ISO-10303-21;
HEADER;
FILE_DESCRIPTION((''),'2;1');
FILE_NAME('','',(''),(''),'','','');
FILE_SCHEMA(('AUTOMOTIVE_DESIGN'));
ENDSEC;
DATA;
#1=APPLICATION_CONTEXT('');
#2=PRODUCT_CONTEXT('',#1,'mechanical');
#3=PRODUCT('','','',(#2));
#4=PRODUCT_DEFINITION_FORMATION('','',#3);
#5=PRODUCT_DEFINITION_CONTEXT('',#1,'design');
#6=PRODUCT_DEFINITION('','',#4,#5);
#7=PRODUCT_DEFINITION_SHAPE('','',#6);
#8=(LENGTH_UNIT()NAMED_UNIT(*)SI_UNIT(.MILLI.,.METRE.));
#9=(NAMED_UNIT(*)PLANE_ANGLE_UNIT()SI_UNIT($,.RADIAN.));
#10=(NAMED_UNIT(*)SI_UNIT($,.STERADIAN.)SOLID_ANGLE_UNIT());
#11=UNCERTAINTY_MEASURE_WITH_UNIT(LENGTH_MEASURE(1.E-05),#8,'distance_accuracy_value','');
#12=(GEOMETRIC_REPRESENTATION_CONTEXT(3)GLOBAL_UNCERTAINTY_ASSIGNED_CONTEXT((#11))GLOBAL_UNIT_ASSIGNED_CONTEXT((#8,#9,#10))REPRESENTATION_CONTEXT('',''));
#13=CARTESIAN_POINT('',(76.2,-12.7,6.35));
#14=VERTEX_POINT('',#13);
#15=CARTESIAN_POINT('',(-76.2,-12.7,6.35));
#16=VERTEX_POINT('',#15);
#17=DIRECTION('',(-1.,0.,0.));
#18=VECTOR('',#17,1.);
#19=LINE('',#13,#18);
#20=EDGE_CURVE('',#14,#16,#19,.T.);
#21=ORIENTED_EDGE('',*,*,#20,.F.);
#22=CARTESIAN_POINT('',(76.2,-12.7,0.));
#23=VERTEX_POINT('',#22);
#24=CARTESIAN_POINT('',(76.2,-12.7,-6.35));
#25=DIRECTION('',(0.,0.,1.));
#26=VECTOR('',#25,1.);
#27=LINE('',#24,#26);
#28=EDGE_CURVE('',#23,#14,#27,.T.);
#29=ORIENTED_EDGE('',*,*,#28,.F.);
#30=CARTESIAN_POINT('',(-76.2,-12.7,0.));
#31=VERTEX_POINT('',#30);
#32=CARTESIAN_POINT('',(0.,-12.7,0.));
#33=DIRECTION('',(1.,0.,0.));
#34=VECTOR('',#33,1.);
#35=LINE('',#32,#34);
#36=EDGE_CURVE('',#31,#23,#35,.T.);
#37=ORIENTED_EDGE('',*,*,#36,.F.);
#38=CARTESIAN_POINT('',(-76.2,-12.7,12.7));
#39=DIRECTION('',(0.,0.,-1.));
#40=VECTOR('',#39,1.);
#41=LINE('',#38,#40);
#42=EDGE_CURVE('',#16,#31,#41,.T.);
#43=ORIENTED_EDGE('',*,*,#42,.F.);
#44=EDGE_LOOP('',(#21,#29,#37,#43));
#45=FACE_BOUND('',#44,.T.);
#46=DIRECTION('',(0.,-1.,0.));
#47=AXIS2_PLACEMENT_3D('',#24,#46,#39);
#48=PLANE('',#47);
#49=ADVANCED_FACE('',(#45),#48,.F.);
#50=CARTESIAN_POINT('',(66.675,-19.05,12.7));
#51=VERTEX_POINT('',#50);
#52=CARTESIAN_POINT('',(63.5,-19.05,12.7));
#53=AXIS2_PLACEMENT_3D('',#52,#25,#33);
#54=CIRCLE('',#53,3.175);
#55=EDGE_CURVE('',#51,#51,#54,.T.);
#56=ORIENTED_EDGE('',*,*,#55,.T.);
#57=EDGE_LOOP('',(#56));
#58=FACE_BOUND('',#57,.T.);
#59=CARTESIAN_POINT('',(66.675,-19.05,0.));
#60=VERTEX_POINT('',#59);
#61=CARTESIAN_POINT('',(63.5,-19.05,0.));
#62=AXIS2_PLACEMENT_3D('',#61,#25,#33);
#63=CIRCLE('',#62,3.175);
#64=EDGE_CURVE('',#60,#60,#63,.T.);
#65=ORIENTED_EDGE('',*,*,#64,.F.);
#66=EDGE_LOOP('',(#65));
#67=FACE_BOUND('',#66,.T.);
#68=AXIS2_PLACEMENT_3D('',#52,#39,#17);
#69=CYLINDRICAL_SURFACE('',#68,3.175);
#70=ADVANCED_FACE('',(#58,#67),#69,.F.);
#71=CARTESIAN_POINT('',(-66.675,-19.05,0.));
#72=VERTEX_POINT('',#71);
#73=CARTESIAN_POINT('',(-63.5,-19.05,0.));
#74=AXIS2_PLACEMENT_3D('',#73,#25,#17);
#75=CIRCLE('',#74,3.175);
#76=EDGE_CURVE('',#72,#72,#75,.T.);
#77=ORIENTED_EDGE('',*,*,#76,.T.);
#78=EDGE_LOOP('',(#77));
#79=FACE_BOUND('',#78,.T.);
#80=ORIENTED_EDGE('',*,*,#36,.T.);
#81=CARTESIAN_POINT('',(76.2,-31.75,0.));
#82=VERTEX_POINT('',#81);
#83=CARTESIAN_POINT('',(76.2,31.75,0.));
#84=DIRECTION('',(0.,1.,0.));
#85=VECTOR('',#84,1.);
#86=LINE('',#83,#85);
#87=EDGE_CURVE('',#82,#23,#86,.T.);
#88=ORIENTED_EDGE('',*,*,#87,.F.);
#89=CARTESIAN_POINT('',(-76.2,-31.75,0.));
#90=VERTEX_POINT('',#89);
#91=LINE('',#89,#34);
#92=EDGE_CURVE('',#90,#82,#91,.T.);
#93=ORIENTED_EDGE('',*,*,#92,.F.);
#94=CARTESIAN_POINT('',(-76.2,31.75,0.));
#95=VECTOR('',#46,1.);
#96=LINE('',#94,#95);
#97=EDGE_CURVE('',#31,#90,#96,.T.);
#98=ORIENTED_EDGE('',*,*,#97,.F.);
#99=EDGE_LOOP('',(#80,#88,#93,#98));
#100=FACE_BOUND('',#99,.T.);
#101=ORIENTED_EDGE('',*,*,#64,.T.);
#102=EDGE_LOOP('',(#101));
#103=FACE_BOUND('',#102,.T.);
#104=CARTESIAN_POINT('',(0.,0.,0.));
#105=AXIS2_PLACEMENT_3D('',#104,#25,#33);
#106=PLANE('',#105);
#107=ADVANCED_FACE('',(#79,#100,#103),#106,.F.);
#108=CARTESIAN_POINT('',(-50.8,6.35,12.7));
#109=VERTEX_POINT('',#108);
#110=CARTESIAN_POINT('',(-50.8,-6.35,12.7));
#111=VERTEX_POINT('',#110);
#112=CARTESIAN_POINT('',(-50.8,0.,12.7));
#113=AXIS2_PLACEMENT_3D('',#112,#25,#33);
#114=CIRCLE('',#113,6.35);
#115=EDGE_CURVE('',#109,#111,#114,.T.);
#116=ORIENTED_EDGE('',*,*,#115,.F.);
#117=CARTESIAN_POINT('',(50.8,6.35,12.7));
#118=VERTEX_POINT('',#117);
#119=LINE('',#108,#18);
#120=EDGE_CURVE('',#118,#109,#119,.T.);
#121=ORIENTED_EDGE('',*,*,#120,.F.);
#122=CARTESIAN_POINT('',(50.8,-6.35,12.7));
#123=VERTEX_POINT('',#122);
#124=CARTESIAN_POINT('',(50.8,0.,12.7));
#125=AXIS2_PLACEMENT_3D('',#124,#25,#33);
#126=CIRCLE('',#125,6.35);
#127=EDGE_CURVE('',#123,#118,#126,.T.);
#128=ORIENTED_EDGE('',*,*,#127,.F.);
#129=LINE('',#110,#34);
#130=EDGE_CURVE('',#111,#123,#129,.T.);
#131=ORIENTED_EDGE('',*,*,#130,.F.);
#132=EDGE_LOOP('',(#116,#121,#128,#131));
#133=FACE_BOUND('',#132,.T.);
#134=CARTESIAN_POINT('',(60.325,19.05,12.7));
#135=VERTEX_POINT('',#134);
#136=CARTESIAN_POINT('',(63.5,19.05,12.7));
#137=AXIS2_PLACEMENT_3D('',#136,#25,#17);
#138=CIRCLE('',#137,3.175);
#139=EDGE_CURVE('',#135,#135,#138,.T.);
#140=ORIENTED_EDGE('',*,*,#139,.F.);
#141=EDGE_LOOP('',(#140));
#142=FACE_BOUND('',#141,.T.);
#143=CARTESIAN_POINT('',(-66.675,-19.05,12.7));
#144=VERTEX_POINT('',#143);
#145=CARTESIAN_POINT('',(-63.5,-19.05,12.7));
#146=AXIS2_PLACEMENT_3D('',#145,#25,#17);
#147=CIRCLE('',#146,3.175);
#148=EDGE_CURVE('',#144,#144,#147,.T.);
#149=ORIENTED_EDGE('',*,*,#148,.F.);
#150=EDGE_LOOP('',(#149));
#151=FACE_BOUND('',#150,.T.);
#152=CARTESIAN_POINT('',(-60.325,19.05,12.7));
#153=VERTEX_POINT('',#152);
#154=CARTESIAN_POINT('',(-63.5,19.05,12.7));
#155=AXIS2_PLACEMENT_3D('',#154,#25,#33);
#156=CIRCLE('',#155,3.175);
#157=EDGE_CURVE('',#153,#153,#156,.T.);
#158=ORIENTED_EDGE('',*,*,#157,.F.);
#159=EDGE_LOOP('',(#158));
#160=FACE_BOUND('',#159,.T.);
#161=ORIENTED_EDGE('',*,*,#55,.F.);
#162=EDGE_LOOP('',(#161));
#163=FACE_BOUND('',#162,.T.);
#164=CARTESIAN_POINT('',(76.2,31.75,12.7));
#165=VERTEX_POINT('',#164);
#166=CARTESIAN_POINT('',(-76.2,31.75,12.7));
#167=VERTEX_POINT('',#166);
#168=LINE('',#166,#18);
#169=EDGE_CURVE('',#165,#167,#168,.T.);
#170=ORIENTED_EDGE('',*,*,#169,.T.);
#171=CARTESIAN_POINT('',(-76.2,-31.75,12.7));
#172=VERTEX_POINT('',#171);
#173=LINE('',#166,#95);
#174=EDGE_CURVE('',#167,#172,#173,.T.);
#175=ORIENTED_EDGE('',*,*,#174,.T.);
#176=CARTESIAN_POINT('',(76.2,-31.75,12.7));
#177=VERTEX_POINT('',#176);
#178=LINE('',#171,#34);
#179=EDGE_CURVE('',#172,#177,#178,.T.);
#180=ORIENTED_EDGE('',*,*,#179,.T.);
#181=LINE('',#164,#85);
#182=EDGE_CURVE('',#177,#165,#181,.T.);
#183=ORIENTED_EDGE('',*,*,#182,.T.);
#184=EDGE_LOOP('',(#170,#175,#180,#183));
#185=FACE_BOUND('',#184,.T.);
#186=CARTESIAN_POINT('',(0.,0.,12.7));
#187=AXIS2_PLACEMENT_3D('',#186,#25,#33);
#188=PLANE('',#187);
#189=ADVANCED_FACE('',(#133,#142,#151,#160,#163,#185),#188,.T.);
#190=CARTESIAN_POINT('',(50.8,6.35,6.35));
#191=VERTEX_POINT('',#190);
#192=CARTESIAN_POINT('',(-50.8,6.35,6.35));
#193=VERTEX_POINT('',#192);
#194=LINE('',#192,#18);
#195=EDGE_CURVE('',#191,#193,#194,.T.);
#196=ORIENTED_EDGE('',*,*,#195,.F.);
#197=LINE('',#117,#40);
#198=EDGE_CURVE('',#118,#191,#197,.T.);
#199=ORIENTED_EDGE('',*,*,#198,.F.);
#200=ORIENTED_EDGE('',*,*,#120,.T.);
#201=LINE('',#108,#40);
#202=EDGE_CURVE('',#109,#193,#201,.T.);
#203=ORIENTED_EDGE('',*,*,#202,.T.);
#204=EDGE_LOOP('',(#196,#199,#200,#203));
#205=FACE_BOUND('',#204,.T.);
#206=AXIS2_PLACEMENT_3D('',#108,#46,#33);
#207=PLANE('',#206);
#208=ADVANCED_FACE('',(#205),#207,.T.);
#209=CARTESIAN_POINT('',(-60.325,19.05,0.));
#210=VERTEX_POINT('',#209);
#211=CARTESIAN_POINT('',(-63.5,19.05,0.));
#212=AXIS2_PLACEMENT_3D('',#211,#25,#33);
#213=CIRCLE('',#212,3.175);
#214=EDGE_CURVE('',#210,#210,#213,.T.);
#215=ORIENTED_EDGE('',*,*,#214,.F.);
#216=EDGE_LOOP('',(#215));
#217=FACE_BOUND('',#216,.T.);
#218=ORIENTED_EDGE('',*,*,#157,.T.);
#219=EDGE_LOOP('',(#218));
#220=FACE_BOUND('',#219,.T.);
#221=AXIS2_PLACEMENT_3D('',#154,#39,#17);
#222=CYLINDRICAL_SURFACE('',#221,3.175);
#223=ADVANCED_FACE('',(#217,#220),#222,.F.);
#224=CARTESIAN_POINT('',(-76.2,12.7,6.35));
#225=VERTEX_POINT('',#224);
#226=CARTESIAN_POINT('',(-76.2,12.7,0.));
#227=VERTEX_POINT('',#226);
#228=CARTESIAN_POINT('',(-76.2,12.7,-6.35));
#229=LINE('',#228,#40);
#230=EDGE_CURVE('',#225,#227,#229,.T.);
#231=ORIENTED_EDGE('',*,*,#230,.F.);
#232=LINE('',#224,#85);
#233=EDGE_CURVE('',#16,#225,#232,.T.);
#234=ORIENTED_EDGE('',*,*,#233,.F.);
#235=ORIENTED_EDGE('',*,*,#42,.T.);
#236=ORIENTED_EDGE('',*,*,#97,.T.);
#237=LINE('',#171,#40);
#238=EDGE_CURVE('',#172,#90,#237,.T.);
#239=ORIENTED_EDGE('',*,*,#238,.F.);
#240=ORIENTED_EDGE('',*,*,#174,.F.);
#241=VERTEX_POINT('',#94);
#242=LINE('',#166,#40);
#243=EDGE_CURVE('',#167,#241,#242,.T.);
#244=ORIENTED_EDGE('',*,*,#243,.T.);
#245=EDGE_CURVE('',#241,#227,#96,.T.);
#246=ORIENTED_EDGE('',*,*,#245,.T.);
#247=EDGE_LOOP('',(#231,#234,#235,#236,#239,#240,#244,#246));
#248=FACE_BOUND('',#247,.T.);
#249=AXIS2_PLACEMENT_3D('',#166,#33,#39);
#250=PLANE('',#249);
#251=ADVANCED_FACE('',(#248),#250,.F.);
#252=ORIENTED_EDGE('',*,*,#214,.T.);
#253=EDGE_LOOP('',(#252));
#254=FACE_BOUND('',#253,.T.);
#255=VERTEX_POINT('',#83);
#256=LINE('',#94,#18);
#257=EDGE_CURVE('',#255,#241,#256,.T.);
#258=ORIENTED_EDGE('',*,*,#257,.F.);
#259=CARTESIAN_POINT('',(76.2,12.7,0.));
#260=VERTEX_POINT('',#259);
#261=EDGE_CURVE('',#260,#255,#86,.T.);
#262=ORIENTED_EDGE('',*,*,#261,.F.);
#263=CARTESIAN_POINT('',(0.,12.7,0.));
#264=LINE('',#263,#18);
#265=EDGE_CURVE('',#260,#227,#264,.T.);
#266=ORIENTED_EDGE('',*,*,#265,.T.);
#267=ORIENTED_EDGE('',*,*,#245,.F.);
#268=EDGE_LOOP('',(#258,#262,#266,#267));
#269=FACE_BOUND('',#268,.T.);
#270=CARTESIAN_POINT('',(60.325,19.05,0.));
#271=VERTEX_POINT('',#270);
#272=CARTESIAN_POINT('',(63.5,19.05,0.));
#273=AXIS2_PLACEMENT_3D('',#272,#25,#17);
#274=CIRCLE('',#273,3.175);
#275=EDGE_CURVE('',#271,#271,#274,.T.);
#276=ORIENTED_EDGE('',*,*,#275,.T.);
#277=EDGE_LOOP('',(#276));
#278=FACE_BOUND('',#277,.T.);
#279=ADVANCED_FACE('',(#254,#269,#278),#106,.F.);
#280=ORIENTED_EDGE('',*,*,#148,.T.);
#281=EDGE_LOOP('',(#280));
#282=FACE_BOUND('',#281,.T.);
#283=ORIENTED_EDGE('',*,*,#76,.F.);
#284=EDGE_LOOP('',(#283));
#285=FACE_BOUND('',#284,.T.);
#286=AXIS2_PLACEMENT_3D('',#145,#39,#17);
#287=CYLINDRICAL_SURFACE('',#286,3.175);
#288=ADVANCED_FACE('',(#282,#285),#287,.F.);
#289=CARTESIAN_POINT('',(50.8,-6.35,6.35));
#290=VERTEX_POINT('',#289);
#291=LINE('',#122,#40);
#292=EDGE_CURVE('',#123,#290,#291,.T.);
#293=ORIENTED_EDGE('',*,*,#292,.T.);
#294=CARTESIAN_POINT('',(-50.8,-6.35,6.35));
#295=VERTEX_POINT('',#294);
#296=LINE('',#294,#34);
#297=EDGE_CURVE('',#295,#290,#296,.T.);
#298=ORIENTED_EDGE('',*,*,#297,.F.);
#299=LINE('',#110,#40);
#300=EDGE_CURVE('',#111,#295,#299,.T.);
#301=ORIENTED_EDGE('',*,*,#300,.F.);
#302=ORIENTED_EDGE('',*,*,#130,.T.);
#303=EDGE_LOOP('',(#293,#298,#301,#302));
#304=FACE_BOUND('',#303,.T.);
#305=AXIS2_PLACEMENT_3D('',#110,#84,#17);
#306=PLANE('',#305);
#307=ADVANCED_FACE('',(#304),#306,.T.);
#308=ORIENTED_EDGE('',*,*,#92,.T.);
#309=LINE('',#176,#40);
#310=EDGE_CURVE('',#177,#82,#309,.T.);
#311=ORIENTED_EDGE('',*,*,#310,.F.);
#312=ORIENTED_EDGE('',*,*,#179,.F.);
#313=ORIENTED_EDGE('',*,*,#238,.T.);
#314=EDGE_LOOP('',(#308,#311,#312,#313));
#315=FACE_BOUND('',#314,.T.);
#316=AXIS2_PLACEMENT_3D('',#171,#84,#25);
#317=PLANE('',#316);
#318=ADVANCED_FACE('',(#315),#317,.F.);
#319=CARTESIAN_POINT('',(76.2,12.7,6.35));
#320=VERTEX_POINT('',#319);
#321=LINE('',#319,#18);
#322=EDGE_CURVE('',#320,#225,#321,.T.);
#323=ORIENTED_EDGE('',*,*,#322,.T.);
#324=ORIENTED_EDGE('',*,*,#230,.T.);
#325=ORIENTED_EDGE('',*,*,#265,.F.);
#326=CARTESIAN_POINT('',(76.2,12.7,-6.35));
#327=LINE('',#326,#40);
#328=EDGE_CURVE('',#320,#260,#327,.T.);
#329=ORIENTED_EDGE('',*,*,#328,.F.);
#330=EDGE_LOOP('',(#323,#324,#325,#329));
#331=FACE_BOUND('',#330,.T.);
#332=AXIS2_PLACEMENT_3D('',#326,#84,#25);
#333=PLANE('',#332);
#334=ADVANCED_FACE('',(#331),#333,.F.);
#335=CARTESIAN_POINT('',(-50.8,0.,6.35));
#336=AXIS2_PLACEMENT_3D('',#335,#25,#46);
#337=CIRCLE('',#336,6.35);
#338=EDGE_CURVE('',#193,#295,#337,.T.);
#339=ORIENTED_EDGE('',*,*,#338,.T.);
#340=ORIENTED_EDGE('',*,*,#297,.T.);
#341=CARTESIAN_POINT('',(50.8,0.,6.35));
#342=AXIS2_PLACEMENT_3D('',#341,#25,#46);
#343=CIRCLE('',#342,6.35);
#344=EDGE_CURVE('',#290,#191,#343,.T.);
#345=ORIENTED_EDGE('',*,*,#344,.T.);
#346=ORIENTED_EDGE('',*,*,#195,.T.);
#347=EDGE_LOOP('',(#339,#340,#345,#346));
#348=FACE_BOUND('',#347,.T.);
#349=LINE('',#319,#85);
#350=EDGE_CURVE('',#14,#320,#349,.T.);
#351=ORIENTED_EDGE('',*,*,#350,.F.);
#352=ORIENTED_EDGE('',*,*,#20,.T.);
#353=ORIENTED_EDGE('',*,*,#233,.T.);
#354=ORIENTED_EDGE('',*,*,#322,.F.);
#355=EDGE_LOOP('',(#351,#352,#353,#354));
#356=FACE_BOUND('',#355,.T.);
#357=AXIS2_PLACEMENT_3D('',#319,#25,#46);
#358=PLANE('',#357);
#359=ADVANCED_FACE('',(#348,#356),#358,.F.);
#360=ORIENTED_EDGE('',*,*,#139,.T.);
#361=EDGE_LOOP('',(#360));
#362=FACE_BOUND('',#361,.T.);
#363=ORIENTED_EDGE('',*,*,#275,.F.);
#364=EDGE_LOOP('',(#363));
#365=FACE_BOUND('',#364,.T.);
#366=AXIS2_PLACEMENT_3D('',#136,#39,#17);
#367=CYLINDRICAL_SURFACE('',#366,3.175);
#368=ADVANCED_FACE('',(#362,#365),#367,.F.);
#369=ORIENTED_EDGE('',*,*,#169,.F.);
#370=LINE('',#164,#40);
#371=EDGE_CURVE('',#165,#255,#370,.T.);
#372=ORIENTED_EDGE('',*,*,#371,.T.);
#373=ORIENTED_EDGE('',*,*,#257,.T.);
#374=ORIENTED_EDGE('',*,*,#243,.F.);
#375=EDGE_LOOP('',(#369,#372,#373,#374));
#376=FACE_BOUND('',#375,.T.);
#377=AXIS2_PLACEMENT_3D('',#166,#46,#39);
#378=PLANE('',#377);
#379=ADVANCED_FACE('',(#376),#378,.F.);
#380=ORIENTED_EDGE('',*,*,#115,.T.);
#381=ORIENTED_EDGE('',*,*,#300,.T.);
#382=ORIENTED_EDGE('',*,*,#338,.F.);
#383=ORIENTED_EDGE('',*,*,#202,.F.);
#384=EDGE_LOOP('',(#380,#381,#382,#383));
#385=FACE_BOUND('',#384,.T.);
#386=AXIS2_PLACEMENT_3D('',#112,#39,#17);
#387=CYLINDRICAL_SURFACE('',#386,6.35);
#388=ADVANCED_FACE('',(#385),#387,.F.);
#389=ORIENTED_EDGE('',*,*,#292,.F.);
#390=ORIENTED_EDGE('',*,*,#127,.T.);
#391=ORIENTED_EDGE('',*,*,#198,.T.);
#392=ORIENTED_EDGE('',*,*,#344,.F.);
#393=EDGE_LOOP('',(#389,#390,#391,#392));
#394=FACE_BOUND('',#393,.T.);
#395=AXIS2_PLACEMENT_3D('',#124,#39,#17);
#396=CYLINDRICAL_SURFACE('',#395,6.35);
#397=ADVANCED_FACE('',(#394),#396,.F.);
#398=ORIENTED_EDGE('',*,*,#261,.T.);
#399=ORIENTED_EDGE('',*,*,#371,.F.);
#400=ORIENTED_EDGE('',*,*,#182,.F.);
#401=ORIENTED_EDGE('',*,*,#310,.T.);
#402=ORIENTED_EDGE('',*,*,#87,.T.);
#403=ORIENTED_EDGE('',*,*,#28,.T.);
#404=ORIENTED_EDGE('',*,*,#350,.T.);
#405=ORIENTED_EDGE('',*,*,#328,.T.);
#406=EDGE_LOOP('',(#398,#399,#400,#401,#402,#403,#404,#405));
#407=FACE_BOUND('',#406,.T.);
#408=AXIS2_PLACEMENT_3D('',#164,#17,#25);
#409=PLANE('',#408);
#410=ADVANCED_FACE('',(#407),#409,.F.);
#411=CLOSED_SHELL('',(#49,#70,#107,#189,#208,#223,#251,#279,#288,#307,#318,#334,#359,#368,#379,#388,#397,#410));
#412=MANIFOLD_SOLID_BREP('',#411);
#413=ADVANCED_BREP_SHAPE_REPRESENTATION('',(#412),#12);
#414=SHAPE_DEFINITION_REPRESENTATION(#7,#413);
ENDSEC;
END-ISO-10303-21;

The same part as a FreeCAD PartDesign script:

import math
import FreeCAD as App
import Part
import Sketcher
Q = App.Units.Quantity

doc = App.newDocument("Part")
body = doc.addObject("PartDesign::Body", "Body")

sketch1 = body.newObject("Sketcher::SketchObject", "Sketch")
sketch1.AttachmentSupport = (doc.getObject("XY_Plane"), [""])
sketch1.MapMode = "FlatFace"
sketch1.addGeometry([
    Part.LineSegment(App.Vector(-76.2, 31.8, 0), App.Vector(-76.2, -31.8, 0)),
    Part.LineSegment(App.Vector(-76.2, -31.8, 0), App.Vector(76.2, -31.8, 0)),
    Part.LineSegment(App.Vector(76.2, -31.8, 0), App.Vector(76.2, 31.8, 0)),
    Part.LineSegment(App.Vector(76.2, 31.8, 0), App.Vector(-76.2, 31.8, 0)),
    Part.Circle(App.Vector(-63.5, -19.1, 0), App.Vector(0, 0, 1), 3.2),
    Part.Circle(App.Vector(63.5, -19.1, 0), App.Vector(0, 0, 1), 3.2),
    Part.Circle(App.Vector(-63.5, 19.1, 0), App.Vector(0, 0, 1), 3.2),
    Part.ArcOfCircle(Part.Circle(App.Vector(-50.8, 0, 0), App.Vector(0, 0, 1), 6.3), math.radians(90), math.radians(270)),
    Part.LineSegment(App.Vector(-50.8, 6.3, 0), App.Vector(50.8, 6.3, 0)),
    Part.ArcOfCircle(Part.Circle(App.Vector(50.8, 0, 0), App.Vector(0, 0, 1), 6.3), math.radians(-90), math.radians(90)),
    Part.LineSegment(App.Vector(50.8, -6.3, 0), App.Vector(-50.8, -6.3, 0)),
    Part.Circle(App.Vector(63.5, 19.1, 0), App.Vector(0, 0, 1), 3.2),
], False)
sketch1.addConstraint([
    Sketcher.Constraint("Coincident", 0, 2, 1, 1),
    Sketcher.Constraint("Coincident", 1, 2, 2, 1),
    Sketcher.Constraint("Coincident", 2, 2, 3, 1),
    Sketcher.Constraint("Coincident", 3, 2, 0, 1),
    Sketcher.Constraint("Tangent", 7, 1, 8, 1),
    Sketcher.Constraint("Tangent", 8, 2, 9, 2),
    Sketcher.Constraint("Tangent", 9, 1, 10, 1),
    Sketcher.Constraint("Tangent", 10, 2, 7, 2),
    Sketcher.Constraint("Vertical", 0),
    Sketcher.Constraint("Horizontal", 1),
    Sketcher.Constraint("Vertical", 2),
    Sketcher.Constraint("Horizontal", 3),
    Sketcher.Constraint("Horizontal", 8),
    Sketcher.Constraint("Horizontal", 10),
    Sketcher.Constraint("Equal", 4, 5),
    Sketcher.Constraint("Equal", 5, 6),
    Sketcher.Constraint("Equal", 6, 11),
    Sketcher.Constraint("Symmetric", 5, 3, 6, 3, -1, 1),
    Sketcher.Constraint("Symmetric", 7, 3, 9, 3, -1, 1),
    Sketcher.Constraint("Symmetric", 4, 3, 11, 3, -1, 1),
    Sketcher.Constraint("Symmetric", 0, 2, 2, 2, -1, 1),
    Sketcher.Constraint("Symmetric", 4, 3, 5, 3, -2),
    Sketcher.Constraint("Diameter", 4, Q("0.25 in")),
    Sketcher.Constraint("DistanceX", 1, 1, 1, 2, Q("6 in")),
    Sketcher.Constraint("DistanceX", 8, 1, 8, 2, Q("4 in")),
    Sketcher.Constraint("Radius", 7, Q("0.25 in")),
    Sketcher.Constraint("DistanceY", 0, 2, 0, 1, Q("2.5 in")),
    Sketcher.Constraint("DistanceX", 4, 3, 5, 3, Q("5 in")),
    Sketcher.Constraint("DistanceY", 0, 2, 6, 3, Q("2 in")),
])
pad1 = body.newObject("PartDesign::Pad", "Pad")
pad1.Profile = sketch1
pad1.Length = Q("0.5 in")

sketch2 = body.newObject("Sketcher::SketchObject", "Sketch001")
sketch2.AttachmentSupport = (doc.getObject("YZ_Plane"), [""])
sketch2.MapMode = "FlatFace"
sketch2.AttachmentOffset = App.Placement(App.Vector(0, 0, -3 * 25.4), App.Rotation())
sketch2.addGeometry([
    Part.LineSegment(App.Vector(13, -6, 0), App.Vector(-13, -6, 0)),
    Part.LineSegment(App.Vector(-13, -6, 0), App.Vector(-13, 6, 0)),
    Part.LineSegment(App.Vector(-13, 6, 0), App.Vector(13, 6, 0)),
    Part.LineSegment(App.Vector(13, 6, 0), App.Vector(13, -6, 0)),
], False)
sketch2.addConstraint([
    Sketcher.Constraint("Coincident", 0, 2, 1, 1),
    Sketcher.Constraint("Coincident", 1, 2, 2, 1),
    Sketcher.Constraint("Coincident", 2, 2, 3, 1),
    Sketcher.Constraint("Coincident", 3, 2, 0, 1),
    Sketcher.Constraint("Horizontal", 0),
    Sketcher.Constraint("Vertical", 1),
    Sketcher.Constraint("Horizontal", 2),
    Sketcher.Constraint("Vertical", 3),
    Sketcher.Constraint("Symmetric", 0, 2, 2, 2, -1, 1),
    Sketcher.Constraint("DistanceX", 0, 2, 0, 1, Q("1 in")),
    Sketcher.Constraint("DistanceY", 1, 1, 1, 2, Q("0.5 in")),
])
pocket1 = body.newObject("PartDesign::Pocket", "Pocket")
pocket1.Profile = sketch2
pocket1.Type = "ThroughAll"
pocket1.Reversed = True

doc.recompute()
